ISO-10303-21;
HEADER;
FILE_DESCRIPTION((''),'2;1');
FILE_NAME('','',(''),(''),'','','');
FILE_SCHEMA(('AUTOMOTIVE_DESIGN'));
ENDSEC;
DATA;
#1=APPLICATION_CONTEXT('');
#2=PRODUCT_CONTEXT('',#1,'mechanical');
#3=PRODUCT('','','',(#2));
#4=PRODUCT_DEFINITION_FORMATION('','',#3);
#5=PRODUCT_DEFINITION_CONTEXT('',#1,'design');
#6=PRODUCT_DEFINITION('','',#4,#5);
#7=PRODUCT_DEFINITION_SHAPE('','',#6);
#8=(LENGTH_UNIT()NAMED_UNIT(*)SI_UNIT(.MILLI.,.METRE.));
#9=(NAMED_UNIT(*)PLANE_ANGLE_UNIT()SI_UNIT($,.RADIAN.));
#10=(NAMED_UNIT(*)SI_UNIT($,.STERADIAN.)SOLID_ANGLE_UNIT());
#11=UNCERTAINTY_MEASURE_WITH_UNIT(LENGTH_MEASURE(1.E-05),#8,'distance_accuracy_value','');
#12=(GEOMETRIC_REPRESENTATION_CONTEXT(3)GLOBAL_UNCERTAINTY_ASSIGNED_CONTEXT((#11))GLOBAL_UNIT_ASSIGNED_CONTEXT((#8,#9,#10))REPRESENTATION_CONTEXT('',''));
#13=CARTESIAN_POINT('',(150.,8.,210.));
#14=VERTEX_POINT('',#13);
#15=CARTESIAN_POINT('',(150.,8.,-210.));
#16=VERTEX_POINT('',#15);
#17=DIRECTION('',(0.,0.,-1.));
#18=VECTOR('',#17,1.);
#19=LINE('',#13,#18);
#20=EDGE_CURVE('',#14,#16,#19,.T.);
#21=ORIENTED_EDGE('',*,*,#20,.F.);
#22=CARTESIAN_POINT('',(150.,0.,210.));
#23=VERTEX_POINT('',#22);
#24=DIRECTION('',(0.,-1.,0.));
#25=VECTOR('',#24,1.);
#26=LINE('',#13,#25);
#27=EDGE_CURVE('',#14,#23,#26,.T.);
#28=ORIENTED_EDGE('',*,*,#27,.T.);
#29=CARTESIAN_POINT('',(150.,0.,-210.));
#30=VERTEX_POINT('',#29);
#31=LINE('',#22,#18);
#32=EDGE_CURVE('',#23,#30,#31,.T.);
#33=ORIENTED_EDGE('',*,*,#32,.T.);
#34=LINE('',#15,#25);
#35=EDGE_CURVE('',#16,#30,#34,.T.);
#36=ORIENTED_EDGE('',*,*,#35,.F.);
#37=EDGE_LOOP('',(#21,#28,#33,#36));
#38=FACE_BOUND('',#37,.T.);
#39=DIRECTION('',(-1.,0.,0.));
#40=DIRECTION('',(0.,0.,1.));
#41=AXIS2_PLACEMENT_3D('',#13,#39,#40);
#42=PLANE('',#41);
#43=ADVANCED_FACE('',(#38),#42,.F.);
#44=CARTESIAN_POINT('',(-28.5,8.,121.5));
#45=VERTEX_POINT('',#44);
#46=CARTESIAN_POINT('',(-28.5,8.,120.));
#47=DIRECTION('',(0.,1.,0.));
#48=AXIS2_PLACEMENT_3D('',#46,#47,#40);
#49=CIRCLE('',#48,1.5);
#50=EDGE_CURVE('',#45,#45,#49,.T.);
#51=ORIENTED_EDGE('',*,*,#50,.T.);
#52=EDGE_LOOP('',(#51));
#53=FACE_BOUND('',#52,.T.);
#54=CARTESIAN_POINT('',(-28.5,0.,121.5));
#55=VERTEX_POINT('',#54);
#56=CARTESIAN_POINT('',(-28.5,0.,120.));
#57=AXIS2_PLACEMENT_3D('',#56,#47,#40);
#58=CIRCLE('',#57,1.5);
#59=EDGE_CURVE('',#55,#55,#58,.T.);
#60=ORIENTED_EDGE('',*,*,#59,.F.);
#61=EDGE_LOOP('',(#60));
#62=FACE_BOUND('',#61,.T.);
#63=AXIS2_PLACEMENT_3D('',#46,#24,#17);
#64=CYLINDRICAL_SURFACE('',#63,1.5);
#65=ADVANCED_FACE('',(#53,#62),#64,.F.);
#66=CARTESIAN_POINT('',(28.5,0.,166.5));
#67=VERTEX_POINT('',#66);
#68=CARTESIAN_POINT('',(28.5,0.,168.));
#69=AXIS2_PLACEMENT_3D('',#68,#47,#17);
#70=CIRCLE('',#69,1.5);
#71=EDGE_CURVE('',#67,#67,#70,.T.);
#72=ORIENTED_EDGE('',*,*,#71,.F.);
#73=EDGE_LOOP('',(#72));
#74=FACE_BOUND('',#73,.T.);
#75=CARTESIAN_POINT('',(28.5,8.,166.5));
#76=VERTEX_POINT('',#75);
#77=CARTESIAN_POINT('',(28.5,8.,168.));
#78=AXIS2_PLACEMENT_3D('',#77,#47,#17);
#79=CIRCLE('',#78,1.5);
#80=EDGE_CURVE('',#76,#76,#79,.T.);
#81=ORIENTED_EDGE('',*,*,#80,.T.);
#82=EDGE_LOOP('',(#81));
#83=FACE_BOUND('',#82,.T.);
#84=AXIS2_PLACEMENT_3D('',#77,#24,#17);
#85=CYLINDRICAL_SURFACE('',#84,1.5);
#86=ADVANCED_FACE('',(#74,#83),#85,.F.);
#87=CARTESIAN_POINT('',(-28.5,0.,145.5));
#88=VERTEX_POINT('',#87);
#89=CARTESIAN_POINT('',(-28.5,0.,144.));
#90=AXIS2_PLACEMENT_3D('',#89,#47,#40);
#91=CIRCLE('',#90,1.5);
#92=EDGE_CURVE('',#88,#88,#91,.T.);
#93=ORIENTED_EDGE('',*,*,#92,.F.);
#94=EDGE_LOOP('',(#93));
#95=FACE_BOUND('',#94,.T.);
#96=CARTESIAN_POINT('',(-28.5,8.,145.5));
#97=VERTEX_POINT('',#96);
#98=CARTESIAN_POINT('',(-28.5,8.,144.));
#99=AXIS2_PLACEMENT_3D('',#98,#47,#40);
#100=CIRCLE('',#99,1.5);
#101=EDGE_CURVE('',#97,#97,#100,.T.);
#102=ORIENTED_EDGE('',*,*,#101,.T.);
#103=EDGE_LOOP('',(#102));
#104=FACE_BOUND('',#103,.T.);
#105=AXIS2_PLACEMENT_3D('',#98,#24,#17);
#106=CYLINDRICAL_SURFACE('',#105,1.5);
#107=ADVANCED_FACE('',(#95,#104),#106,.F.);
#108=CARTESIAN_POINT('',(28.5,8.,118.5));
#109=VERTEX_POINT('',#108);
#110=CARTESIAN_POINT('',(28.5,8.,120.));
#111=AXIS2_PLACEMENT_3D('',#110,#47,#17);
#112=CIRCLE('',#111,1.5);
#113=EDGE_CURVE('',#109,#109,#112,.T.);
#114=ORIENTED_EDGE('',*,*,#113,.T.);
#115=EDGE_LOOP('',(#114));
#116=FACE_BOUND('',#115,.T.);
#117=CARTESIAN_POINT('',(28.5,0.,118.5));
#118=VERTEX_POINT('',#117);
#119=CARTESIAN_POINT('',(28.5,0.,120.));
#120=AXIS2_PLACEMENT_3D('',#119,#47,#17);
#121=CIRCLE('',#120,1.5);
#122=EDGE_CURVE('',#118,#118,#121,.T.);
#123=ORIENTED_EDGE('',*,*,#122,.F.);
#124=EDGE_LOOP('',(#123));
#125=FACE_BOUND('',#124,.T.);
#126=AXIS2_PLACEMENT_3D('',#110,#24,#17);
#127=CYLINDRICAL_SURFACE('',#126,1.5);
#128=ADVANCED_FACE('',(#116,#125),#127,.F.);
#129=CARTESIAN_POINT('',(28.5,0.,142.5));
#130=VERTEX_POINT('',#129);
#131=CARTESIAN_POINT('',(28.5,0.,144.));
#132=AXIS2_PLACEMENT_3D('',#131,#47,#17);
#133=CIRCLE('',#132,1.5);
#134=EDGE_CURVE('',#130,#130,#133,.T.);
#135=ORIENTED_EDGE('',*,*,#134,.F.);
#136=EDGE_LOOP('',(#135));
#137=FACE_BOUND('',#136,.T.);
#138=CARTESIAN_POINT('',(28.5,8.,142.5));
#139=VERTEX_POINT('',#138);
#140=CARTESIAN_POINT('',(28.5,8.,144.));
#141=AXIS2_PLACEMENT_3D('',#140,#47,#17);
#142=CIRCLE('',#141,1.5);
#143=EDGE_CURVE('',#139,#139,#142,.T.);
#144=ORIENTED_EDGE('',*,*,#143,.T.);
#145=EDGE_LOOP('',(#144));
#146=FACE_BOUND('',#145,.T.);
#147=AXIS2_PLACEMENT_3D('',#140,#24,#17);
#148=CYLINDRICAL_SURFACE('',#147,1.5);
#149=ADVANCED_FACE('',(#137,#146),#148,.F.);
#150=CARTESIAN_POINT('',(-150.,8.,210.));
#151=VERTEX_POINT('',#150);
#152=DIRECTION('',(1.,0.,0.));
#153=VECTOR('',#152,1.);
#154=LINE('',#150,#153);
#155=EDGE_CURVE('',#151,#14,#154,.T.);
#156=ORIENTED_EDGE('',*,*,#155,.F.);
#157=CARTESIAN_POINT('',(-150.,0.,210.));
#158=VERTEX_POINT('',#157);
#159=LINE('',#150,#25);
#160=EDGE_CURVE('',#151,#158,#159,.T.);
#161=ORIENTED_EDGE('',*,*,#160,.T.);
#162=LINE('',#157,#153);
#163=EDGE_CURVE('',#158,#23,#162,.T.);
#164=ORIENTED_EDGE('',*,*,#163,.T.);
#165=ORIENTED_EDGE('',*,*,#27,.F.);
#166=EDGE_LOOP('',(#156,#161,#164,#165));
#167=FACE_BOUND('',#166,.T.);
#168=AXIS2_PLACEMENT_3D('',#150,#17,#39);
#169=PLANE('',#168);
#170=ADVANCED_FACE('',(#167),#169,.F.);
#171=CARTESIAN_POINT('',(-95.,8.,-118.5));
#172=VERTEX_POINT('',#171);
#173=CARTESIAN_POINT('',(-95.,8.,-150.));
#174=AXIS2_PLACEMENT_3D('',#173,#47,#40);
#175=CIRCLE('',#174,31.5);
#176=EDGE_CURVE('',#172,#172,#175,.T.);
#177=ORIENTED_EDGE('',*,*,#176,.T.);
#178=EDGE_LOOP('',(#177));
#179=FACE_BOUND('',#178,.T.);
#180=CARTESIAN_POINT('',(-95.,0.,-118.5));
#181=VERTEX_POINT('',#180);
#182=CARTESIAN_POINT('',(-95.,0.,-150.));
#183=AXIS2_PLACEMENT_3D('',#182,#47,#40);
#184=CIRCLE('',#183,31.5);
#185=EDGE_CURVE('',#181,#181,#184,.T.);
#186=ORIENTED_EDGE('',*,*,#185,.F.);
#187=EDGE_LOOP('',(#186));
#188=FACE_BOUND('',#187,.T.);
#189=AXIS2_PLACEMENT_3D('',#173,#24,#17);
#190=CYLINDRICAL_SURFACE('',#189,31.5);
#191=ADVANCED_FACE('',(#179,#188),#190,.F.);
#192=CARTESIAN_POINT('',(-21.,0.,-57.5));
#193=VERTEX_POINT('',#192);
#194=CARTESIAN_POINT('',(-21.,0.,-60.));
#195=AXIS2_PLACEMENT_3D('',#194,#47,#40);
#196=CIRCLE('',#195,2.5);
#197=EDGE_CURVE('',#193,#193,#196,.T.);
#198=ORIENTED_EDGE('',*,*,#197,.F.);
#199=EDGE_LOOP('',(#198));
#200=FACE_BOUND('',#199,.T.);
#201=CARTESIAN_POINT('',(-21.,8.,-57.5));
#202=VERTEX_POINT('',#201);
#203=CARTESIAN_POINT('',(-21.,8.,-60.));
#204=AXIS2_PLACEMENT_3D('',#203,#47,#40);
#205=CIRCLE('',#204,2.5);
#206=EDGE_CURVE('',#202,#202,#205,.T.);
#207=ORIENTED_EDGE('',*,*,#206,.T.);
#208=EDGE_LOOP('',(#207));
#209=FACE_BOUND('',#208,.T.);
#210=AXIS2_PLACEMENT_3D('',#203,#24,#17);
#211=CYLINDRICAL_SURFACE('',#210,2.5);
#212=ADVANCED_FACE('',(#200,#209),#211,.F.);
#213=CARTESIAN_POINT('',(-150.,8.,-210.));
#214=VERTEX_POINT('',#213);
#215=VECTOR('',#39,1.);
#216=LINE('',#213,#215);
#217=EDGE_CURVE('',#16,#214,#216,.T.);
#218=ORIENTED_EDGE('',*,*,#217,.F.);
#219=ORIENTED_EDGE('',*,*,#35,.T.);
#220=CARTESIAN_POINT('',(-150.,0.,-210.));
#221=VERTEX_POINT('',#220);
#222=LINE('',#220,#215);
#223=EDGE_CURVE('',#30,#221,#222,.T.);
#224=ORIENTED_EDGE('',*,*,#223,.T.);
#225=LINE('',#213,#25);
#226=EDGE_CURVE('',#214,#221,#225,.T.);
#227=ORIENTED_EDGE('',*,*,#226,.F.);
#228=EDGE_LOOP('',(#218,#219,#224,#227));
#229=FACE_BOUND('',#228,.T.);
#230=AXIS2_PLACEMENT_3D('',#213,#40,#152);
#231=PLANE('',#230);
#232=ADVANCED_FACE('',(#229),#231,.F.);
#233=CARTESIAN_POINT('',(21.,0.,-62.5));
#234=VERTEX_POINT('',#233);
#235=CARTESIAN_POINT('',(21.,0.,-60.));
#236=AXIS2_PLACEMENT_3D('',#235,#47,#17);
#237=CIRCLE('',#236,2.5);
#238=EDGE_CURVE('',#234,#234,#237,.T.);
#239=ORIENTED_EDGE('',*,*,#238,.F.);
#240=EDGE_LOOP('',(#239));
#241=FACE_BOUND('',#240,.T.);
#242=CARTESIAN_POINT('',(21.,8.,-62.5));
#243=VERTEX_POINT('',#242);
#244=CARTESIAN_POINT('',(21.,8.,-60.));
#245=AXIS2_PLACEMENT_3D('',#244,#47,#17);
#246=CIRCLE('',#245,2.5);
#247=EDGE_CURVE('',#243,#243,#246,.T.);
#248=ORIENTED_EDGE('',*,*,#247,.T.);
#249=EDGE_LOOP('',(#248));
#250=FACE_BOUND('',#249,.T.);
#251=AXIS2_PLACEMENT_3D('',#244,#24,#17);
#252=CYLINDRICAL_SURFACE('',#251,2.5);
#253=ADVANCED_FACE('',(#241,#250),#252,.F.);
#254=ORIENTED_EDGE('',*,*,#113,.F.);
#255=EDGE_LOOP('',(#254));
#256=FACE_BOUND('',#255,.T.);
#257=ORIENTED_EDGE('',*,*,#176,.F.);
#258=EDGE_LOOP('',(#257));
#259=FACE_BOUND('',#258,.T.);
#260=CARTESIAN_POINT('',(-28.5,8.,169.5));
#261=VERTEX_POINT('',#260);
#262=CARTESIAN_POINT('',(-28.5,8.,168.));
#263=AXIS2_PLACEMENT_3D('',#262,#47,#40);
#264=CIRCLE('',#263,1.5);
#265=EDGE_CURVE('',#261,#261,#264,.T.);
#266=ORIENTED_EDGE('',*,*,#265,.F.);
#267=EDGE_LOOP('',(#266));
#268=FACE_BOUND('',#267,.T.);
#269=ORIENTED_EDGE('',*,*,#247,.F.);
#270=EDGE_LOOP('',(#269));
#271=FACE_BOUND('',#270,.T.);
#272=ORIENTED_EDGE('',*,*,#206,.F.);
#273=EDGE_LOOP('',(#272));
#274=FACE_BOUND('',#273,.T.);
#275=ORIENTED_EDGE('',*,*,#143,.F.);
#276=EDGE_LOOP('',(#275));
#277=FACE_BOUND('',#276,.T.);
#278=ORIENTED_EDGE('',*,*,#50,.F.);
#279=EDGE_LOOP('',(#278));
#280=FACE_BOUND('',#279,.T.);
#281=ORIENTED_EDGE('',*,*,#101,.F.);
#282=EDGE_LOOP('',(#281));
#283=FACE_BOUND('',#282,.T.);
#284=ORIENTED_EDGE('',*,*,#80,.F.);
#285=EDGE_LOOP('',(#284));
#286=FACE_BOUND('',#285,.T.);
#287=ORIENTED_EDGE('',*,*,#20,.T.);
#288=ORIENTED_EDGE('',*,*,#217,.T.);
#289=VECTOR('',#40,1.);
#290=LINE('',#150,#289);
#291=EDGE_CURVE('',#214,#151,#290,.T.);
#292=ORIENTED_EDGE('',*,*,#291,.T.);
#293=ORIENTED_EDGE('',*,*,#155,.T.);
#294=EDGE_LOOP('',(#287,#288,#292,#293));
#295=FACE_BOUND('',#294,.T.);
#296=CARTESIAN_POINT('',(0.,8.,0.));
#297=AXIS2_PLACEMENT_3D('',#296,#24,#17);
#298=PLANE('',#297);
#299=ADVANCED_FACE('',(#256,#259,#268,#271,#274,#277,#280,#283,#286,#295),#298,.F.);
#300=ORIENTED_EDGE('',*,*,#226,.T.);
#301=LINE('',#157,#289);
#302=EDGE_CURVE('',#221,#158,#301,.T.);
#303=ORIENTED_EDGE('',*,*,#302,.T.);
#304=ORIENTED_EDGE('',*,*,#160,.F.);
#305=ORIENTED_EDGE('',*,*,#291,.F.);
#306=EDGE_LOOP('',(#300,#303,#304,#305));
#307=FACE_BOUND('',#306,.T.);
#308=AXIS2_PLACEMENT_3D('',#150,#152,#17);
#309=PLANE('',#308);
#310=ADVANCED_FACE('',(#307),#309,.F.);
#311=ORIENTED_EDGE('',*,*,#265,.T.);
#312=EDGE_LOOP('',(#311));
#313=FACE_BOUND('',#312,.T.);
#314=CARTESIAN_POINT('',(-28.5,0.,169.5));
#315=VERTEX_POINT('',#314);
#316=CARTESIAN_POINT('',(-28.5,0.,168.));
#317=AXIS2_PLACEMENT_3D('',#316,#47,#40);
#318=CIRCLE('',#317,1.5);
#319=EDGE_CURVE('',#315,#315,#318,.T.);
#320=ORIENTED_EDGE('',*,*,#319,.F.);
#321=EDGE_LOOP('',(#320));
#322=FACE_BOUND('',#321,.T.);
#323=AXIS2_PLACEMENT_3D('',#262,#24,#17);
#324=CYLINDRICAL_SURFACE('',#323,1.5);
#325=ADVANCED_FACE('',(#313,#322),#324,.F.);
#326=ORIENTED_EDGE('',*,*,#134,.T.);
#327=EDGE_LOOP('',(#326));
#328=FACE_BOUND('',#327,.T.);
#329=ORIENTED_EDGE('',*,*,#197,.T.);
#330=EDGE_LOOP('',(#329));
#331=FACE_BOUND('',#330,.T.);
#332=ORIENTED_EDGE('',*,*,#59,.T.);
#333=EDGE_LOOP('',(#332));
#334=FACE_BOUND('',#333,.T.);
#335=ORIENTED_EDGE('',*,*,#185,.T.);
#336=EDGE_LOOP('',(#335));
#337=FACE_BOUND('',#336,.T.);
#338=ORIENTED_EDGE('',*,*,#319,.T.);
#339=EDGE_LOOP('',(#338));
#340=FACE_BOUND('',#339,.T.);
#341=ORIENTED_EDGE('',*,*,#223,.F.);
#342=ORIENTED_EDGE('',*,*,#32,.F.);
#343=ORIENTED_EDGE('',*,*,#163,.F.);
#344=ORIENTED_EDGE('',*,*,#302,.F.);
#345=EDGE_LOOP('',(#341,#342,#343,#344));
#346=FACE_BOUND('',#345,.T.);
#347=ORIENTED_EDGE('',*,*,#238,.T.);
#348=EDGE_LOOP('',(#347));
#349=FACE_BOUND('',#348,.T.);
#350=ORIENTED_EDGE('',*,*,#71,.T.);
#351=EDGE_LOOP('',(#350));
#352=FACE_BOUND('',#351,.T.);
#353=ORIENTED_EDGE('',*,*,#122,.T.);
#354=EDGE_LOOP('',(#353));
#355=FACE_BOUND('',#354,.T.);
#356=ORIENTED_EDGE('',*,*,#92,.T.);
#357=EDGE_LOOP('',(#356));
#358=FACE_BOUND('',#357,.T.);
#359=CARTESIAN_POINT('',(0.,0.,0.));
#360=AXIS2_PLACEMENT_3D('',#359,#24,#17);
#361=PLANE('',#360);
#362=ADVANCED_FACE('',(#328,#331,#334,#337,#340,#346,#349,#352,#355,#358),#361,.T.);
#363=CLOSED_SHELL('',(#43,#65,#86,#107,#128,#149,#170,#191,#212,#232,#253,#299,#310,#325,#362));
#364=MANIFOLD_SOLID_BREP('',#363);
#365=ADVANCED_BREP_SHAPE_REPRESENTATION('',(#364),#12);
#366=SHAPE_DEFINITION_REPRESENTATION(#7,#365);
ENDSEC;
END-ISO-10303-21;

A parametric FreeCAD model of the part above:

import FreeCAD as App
import Part
import Sketcher
from FreeCAD import Vector
Q = App.Units.Quantity

doc = App.newDocument("Part")
body = doc.addObject("PartDesign::Body", "Body")

sketch1 = doc.addObject("Sketcher::SketchObject", "Sketch")
body.addObject(sketch1)
sketch1.AttachmentSupport = (doc.XZ_Plane, [""])
sketch1.MapMode = "FlatFace"
sketch1.addGeometry(Part.LineSegment(Vector(-150, -210, 0), Vector(-150, 210, 0)), False)
sketch1.addGeometry(Part.LineSegment(Vector(-150, 210, 0), Vector(150, 210, 0)), False)
sketch1.addGeometry(Part.LineSegment(Vector(150, 210, 0), Vector(150, -210, 0)), False)
sketch1.addGeometry(Part.LineSegment(Vector(150, -210, 0), Vector(-150, -210, 0)), False)
sketch1.addGeometry(Part.Circle(Vector(-28.5, 168, 0), Vector(0, 0, 1), 1.5), False)
sketch1.addGeometry(Part.Circle(Vector(-28.5, 144, 0), Vector(0, 0, 1), 1.5), False)
sketch1.addGeometry(Part.Circle(Vector(-28.5, 120, 0), Vector(0, 0, 1), 1.5), False)
sketch1.addGeometry(Part.Circle(Vector(28.5, 168, 0), Vector(0, 0, 1), 1.5), False)
sketch1.addGeometry(Part.Circle(Vector(28.5, 144, 0), Vector(0, 0, 1), 1.5), False)
sketch1.addGeometry(Part.Circle(Vector(28.5, 120, 0), Vector(0, 0, 1), 1.5), False)
sketch1.addGeometry(Part.Circle(Vector(-95, -150, 0), Vector(0, 0, 1), 31.5), False)
sketch1.addGeometry(Part.Circle(Vector(-21, -60, 0), Vector(0, 0, 1), 2.5), False)
sketch1.addGeometry(Part.Circle(Vector(21, -60, 0), Vector(0, 0, 1), 2.5), False)
sketch1.addConstraint(Sketcher.Constraint("Coincident", 0, 2, 1, 1))
sketch1.addConstraint(Sketcher.Constraint("Coincident", 1, 2, 2, 1))
sketch1.addConstraint(Sketcher.Constraint("Coincident", 2, 2, 3, 1))
sketch1.addConstraint(Sketcher.Constraint("Coincident", 3, 2, 0, 1))
sketch1.addConstraint(Sketcher.Constraint("Vertical", 0))
sketch1.addConstraint(Sketcher.Constraint("Horizontal", 1))
sketch1.addConstraint(Sketcher.Constraint("Vertical", 2))
sketch1.addConstraint(Sketcher.Constraint("Horizontal", 3))
sketch1.addConstraint(Sketcher.Constraint("Equal", 4, 5))
sketch1.addConstraint(Sketcher.Constraint("Equal", 5, 6))
sketch1.addConstraint(Sketcher.Constraint("Equal", 6, 7))
sketch1.addConstraint(Sketcher.Constraint("Equal", 7, 8))
sketch1.addConstraint(Sketcher.Constraint("Equal", 8, 9))
sketch1.addConstraint(Sketcher.Constraint("Equal", 11, 12))
sketch1.addConstraint(Sketcher.Constraint("Symmetric", 0, 2, 2, 2, -1, 1))
sketch1.addConstraint(Sketcher.Constraint("Symmetric", 4, 3, 7, 3, -2))
sketch1.addConstraint(Sketcher.Constraint("Symmetric", 5, 3, 8, 3, -2))
sketch1.addConstraint(Sketcher.Constraint("Symmetric", 6, 3, 9, 3, -2))
sketch1.addConstraint(Sketcher.Constraint("Symmetric", 11, 3, 12, 3, -2))
sketch1.addConstraint(Sketcher.Constraint("Vertical", 4, 3, 5, 3))
sketch1.addConstraint(Sketcher.Constraint("Vertical", 5, 3, 6, 3))
sketch1.addConstraint(Sketcher.Constraint("Diameter", 4, Q("3 mm")))
sketch1.addConstraint(Sketcher.Constraint("Diameter", 10, Q("63 mm")))
sketch1.addConstraint(Sketcher.Constraint("Diameter", 11, Q("5 mm")))
sketch1.addConstraint(Sketcher.Constraint("DistanceX", 1, 1, 1, 2, Q("300 mm")))
sketch1.addConstraint(Sketcher.Constraint("DistanceY", 0, 1, 0, 2, Q("420 mm")))
sketch1.addConstraint(Sketcher.Constraint("DistanceY", -1, 1, 4, 3, Q("168 mm")))
sketch1.addConstraint(Sketcher.Constraint("DistanceY", -1, 1, 5, 3, Q("144 mm")))
sketch1.addConstraint(Sketcher.Constraint("DistanceY", -1, 1, 6, 3, Q("120 mm")))
sketch1.addConstraint(Sketcher.Constraint("DistanceX", 10, 3, -1, 1, Q("95 mm")))
sketch1.addConstraint(Sketcher.Constraint("DistanceY", 10, 3, -1, 1, Q("150 mm")))
sketch1.addConstraint(Sketcher.Constraint("DistanceX", 11, 3, -1, 1, Q("21 mm")))
sketch1.addConstraint(Sketcher.Constraint("DistanceY", 11, 3, -1, 1, Q("60 mm")))
sketch1.addConstraint(Sketcher.Constraint("DistanceX", 4, 3, 7, 3, Q("57 mm")))
pad1 = doc.addObject("PartDesign::Pad", "Pad")
body.addObject(pad1)
pad1.Profile = sketch1
pad1.Length = 8
pad1.Reversed = True

doc.recompute()
